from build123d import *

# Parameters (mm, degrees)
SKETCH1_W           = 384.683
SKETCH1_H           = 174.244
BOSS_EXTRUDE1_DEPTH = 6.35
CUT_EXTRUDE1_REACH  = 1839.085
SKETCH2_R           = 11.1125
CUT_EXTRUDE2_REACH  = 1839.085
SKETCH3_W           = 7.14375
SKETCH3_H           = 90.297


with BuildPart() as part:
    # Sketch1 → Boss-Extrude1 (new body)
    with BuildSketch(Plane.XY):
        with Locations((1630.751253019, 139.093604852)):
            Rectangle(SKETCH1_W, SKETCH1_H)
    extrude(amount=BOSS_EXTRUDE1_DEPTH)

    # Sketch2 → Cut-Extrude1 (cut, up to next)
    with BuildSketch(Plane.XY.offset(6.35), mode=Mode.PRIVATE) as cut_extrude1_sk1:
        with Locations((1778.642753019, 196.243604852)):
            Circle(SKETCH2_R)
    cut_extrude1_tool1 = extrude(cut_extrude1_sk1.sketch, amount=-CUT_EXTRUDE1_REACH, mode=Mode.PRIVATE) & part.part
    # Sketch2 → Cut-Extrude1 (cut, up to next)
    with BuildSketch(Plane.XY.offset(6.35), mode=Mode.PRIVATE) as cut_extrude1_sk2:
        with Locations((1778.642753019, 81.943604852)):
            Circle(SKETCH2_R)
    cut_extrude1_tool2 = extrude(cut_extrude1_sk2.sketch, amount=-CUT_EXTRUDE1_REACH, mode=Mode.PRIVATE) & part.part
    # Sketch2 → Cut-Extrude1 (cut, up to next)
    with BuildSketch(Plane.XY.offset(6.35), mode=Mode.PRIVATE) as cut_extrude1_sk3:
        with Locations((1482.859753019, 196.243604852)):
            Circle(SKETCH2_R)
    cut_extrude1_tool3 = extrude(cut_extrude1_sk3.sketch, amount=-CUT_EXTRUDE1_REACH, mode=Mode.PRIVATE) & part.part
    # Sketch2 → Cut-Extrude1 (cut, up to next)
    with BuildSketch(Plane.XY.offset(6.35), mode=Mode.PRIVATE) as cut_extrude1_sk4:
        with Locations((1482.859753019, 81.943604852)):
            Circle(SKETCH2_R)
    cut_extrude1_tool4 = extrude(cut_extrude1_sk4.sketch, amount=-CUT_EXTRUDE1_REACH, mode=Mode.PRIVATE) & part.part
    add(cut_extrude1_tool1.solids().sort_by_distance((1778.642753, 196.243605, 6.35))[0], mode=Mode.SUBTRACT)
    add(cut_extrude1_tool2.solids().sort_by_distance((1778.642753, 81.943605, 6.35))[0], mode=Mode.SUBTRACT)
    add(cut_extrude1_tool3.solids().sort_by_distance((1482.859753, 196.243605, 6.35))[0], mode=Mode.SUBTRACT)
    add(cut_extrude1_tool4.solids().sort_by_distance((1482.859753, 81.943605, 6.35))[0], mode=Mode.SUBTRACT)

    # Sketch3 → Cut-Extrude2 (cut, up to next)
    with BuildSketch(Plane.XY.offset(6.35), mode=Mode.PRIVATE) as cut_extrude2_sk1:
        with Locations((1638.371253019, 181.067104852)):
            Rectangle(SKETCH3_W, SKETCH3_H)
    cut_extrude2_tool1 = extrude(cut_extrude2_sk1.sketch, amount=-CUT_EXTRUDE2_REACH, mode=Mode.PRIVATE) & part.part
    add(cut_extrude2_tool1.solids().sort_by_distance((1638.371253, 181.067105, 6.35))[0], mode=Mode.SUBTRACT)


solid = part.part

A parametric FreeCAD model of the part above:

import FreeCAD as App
import Part
import Sketcher

V = App.Vector
Q = App.Units.Quantity


def add_polygon(sketch, points):
    """Adds a closed chain of lines whose ends are joined by coincident constraints."""
    first, n = sketch.GeometryCount, len(points)
    for a, b in zip(points, points[1:] + points[:1]):
        sketch.addGeometry(Part.LineSegment(App.Vector(*a, 0), App.Vector(*b, 0)), False)
    for i in range(n):
        sketch.addConstraint(Sketcher.Constraint("Coincident", first + i, 2, first + (i + 1) % n, 1))

doc = App.newDocument("Part")
params = doc.addObject("Spreadsheet::Sheet", "Params")
for row, (alias, value) in enumerate([
    ("sketch1_height", "6.86 in"),
    ("sketch1_width", "15.145 in"),
    ("pad1_length", "0.25 in"),
    ("sketch2_diameter", "0.875 in"),
    ("sketch3_diameter", "0.875 in"),
    ("sketch4_diameter", "0.875 in"),
    ("sketch5_diameter", "0.875 in"),
    ("sketch6_width", "0.28125 in"),
    ("sketch6_height", "3.555 in"),
], start=1):
    params.set(f"A{row}", alias)
    params.set(f"B{row}", "=" + value)
    params.setAlias(f"B{row}", alias)

body = doc.addObject("PartDesign::Body", "Body")

sketch1 = body.newObject("Sketcher::SketchObject", "Sketch")
sketch1.AttachmentSupport = (doc.getObject("XY_Plane"), [""])
sketch1.MapMode = "FlatFace"
add_polygon(sketch1, [(1438, 226), (1438, 52), (1823, 52), (1823, 226)])
sketch1.addConstraint(Sketcher.Constraint("Vertical", 0))
sketch1.addConstraint(Sketcher.Constraint("Horizontal", 1))
sketch1.addConstraint(Sketcher.Constraint("Vertical", 2))
sketch1.addConstraint(Sketcher.Constraint("Horizontal", 3))
sketch1.addConstraint(Sketcher.Constraint("DistanceY", 0, 2, 0, 1, Q("6.86 in")))
sketch1.addConstraint(Sketcher.Constraint("DistanceX", 1, 1, 1, 2, Q("15.145 in")))
sketch1.addConstraint(Sketcher.Constraint("DistanceX", -1, 1, 0, 2, Q("1438.409753 mm")))
sketch1.addConstraint(Sketcher.Constraint("DistanceY", -1, 1, 0, 2, Q("51.971605 mm")))
sketch1.setExpression("Constraints[8]", "Params.sketch1_height")
sketch1.setExpression("Constraints[9]", "Params.sketch1_width")
pad1 = body.newObject("PartDesign::Pad", "Pad")
pad1.Profile = sketch1
pad1.setExpression("Length", "Params.pad1_length")

sketch2 = body.newObject("Sketcher::SketchObject", "Sketch001")
sketch2.AttachmentSupport = (doc.getObject("XY_Plane"), [""])
sketch2.MapMode = "FlatFace"
sketch2.AttachmentOffset = App.Placement(V(0, 0, 0.25 * 25.4), App.Rotation())
sketch2.addGeometry(Part.Circle(V(1779, 196, 0), V(0, 0, 1), 11), False)
sketch2.addConstraint(Sketcher.Constraint("Diameter", 0, Q("0.875 in")))
sketch2.addConstraint(Sketcher.Constraint("DistanceX", -1, 1, 0, 3, Q("1778.642753 mm")))
sketch2.addConstraint(Sketcher.Constraint("DistanceY", -1, 1, 0, 3, Q("196.243605 mm")))
sketch2.setExpression("Constraints[0]", "Params.sketch2_diameter")
pocket1 = body.newObject("PartDesign::Pocket", "Pocket")
pocket1.Profile = sketch2
pocket1.Type = "UpToFirst"

sketch3 = body.newObject("Sketcher::SketchObject", "Sketch002")
sketch3.AttachmentSupport = (doc.getObject("XY_Plane"), [""])
sketch3.MapMode = "FlatFace"
sketch3.AttachmentOffset = App.Placement(V(0, 0, 0.25 * 25.4), App.Rotation())
sketch3.addGeometry(Part.Circle(V(1779, 82, 0), V(0, 0, 1), 11), False)
sketch3.addConstraint(Sketcher.Constraint("Diameter", 0, Q("0.875 in")))
sketch3.addConstraint(Sketcher.Constraint("DistanceX", -1, 1, 0, 3, Q("1778.642753 mm")))
sketch3.addConstraint(Sketcher.Constraint("DistanceY", -1, 1, 0, 3, Q("81.943605 mm")))
sketch3.setExpression("Constraints[0]", "Params.sketch3_diameter")
pocket2 = body.newObject("PartDesign::Pocket", "Pocket001")
pocket2.Profile = sketch3
pocket2.Type = "UpToFirst"

sketch4 = body.newObject("Sketcher::SketchObject", "Sketch003")
sketch4.AttachmentSupport = (doc.getObject("XY_Plane"), [""])
sketch4.MapMode = "FlatFace"
sketch4.AttachmentOffset = App.Placement(V(0, 0, 0.25 * 25.4), App.Rotation())
sketch4.addGeometry(Part.Circle(V(1483, 196, 0), V(0, 0, 1), 11), False)
sketch4.addConstraint(Sketcher.Constraint("Diameter", 0, Q("0.875 in")))
sketch4.addConstraint(Sketcher.Constraint("DistanceX", -1, 1, 0, 3, Q("1482.859753 mm")))
sketch4.addConstraint(Sketcher.Constraint("DistanceY", -1, 1, 0, 3, Q("196.243605 mm")))
sketch4.setExpression("Constraints[0]", "Params.sketch4_diameter")
pocket3 = body.newObject("PartDesign::Pocket", "Pocket002")
pocket3.Profile = sketch4
pocket3.Type = "UpToFirst"

sketch5 = body.newObject("Sketcher::SketchObject", "Sketch004")
sketch5.AttachmentSupport = (doc.getObject("XY_Plane"), [""])
sketch5.MapMode = "FlatFace"
sketch5.AttachmentOffset = App.Placement(V(0, 0, 0.25 * 25.4), App.Rotation())
sketch5.addGeometry(Part.Circle(V(1483, 82, 0), V(0, 0, 1), 11), False)
sketch5.addConstraint(Sketcher.Constraint("Diameter", 0, Q("0.875 in")))
sketch5.addConstraint(Sketcher.Constraint("DistanceX", -1, 1, 0, 3, Q("1482.859753 mm")))
sketch5.addConstraint(Sketcher.Constraint("DistanceY", -1, 1, 0, 3, Q("81.943605 mm")))
sketch5.setExpression("Constraints[0]", "Params.sketch5_diameter")
pocket4 = body.newObject("PartDesign::Pocket", "Pocket003")
pocket4.Profile = sketch5
pocket4.Type = "UpToFirst"

sketch6 = body.newObject("Sketcher::SketchObject", "Sketch005")
sketch6.AttachmentSupport = (doc.getObject("XY_Plane"), [""])
sketch6.MapMode = "FlatFace"
sketch6.AttachmentOffset = App.Placement(V(0, 0, 0.25 * 25.4), App.Rotation())
add_polygon(sketch6, [(1635, 226), (1635, 136), (1642, 136), (1642, 226)])
sketch6.addConstraint(Sketcher.Constraint("Vertical", 0))
sketch6.addConstraint(Sketcher.Constraint("Horizontal", 1))
sketch6.addConstraint(Sketcher.Constraint("Vertical", 2))
sketch6.addConstraint(Sketcher.Constraint("Horizontal", 3))
sketch6.addConstraint(Sketcher.Constraint("DistanceX", 1, 1, 1, 2, Q("0.28125 in")))
sketch6.addConstraint(Sketcher.Constraint("DistanceY", 0, 2, 0, 1, Q("3.555 in")))
sketch6.addConstraint(Sketcher.Constraint("DistanceX", -1, 1, 0, 2, Q("1634.799378 mm")))
sketch6.addConstraint(Sketcher.Constraint("DistanceY", -1, 1, 0, 2, Q("135.918605 mm")))
sketch6.setExpression("Constraints[8]", "Params.sketch6_width")
sketch6.setExpression("Constraints[9]", "Params.sketch6_height")
pocket5 = body.newObject("PartDesign::Pocket", "Pocket004")
pocket5.Profile = sketch6
pocket5.Type = "UpToFirst"

doc.recompute()
